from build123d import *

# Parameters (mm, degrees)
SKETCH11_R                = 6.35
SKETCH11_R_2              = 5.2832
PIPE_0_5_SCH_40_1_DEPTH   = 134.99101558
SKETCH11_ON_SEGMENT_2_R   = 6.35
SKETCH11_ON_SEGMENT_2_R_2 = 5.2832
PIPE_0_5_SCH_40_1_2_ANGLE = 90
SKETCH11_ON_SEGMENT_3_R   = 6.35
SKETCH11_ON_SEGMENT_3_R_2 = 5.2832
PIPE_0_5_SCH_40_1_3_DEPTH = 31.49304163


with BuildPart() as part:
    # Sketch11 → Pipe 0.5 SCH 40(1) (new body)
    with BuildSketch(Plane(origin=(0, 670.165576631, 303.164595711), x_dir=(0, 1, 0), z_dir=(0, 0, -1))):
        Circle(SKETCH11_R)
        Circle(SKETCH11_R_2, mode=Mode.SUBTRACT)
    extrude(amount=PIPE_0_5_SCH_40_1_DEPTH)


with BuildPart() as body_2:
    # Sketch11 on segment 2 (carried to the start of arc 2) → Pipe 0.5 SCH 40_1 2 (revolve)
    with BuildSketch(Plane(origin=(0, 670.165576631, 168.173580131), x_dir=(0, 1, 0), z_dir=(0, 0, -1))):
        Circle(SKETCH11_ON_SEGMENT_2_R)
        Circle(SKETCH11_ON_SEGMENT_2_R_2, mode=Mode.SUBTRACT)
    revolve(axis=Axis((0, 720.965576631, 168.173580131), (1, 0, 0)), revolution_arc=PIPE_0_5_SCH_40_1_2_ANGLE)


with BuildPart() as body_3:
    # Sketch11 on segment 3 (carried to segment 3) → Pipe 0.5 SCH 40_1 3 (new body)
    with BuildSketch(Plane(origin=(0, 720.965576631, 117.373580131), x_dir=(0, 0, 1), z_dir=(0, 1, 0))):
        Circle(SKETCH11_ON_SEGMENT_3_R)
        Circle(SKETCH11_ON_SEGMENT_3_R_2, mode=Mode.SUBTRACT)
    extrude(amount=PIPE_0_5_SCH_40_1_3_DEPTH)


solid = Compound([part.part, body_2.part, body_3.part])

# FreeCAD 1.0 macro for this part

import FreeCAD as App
import Part
import Sketcher
Q = App.Units.Quantity

doc = App.newDocument("Part")
body = doc.addObject("PartDesign::Body", "Body")

sketch1 = body.newObject("Sketcher::SketchObject", "Sketch")
sketch1.AttachmentSupport = (doc.getObject("XY_Plane"), [""])
sketch1.MapMode = "FlatFace"
sketch1.AttachmentOffset = App.Placement(App.Vector(0, 0, 303.164596), App.Rotation())
sketch1.addGeometry(Part.Circle(App.Vector(0, 670.165577, 0), App.Vector(0, 0, 1), 6.35), False)
sketch1.addGeometry(Part.Circle(App.Vector(0, 670.165577, 0), App.Vector(0, 0, 1), 5.2832), False)
sketch1.addConstraint(Sketcher.Constraint("Coincident", 1, 3, 0, 3))
sketch1.addConstraint(Sketcher.Constraint("PointOnObject", 0, 3, -2))
sketch1.addConstraint(Sketcher.Constraint("Diameter", 0, Q("0.5 in")))
sketch1.addConstraint(Sketcher.Constraint("Diameter", 1, Q("0.416 in")))
sketch1.addConstraint(Sketcher.Constraint("DistanceY", -1, 1, 0, 3, Q("670.165577 mm")))
pad1 = body.newObject("PartDesign::Pad", "Pad")
pad1.Profile = sketch1
pad1.Length = 134.991016
pad1.Reversed = True
body2 = doc.addObject("PartDesign::Body", "Body001")

sketch2 = body2.newObject("Sketcher::SketchObject", "Sketch001")
sketch2.AttachmentSupport = (doc.getObject("XY_Plane001"), [""])
sketch2.MapMode = "FlatFace"
sketch2.AttachmentOffset = App.Placement(App.Vector(0, 0, 168.17358), App.Rotation())
sketch2.addGeometry(Part.Circle(App.Vector(0, 670.165577, 0), App.Vector(0, 0, 1), 6.35), False)
sketch2.addGeometry(Part.Circle(App.Vector(0, 670.165577, 0), App.Vector(0, 0, 1), 5.2832), False)
sketch2.addGeometry(Part.LineSegment(App.Vector(0, 720.965577, 0), App.Vector(10, 720.965577, 0)), True)
sketch2.addConstraint(Sketcher.Constraint("Horizontal", 2))
sketch2.addConstraint(Sketcher.Constraint("Coincident", 1, 3, 0, 3))
sketch2.addConstraint(Sketcher.Constraint("PointOnObject", 0, 3, -2))
sketch2.addConstraint(Sketcher.Constraint("PointOnObject", 2, 1, -2))
sketch2.addConstraint(Sketcher.Constraint("Diameter", 0, Q("0.5 in")))
sketch2.addConstraint(Sketcher.Constraint("Diameter", 1, Q("0.416 in")))
sketch2.addConstraint(Sketcher.Constraint("DistanceY", 0, 3, 2, 1, Q("2 in")))
sketch2.addConstraint(Sketcher.Constraint("DistanceX", 2, 1, 2, 2, Q("10 mm")))
sketch2.addConstraint(Sketcher.Constraint("DistanceY", -1, 1, 0, 3, Q("670.165577 mm")))
revolution = body2.newObject("PartDesign::Revolution", "Revolution")
revolution.Profile = sketch2
revolution.ReferenceAxis = (sketch2, ["Axis0"])
revolution.Angle = 90
body3 = doc.addObject("PartDesign::Body", "Body002")

sketch3 = body3.newObject("Sketcher::SketchObject", "Sketch002")
sketch3.AttachmentSupport = (doc.getObject("XZ_Plane002"), [""])
sketch3.MapMode = "FlatFace"
sketch3.AttachmentOffset = App.Placement(App.Vector(0, 0, -720.965577), App.Rotation())
sketch3.addGeometry(Part.Circle(App.Vector(0, 117.37358, 0), App.Vector(0, 0, 1), 6.35), False)
sketch3.addGeometry(Part.Circle(App.Vector(0, 117.37358, 0), App.Vector(0, 0, 1), 5.2832), False)
sketch3.addConstraint(Sketcher.Constraint("Coincident", 1, 3, 0, 3))
sketch3.addConstraint(Sketcher.Constraint("PointOnObject", 0, 3, -2))
sketch3.addConstraint(Sketcher.Constraint("Diameter", 0, Q("0.5 in")))
sketch3.addConstraint(Sketcher.Constraint("Diameter", 1, Q("0.416 in")))
sketch3.addConstraint(Sketcher.Constraint("DistanceY", -1, 1, 0, 3, Q("117.37358 mm")))
pad2 = body3.newObject("PartDesign::Pad", "Pad001")
pad2.Profile = sketch3
pad2.Length = 31.493042
pad2.Reversed = True

doc.recompute()
